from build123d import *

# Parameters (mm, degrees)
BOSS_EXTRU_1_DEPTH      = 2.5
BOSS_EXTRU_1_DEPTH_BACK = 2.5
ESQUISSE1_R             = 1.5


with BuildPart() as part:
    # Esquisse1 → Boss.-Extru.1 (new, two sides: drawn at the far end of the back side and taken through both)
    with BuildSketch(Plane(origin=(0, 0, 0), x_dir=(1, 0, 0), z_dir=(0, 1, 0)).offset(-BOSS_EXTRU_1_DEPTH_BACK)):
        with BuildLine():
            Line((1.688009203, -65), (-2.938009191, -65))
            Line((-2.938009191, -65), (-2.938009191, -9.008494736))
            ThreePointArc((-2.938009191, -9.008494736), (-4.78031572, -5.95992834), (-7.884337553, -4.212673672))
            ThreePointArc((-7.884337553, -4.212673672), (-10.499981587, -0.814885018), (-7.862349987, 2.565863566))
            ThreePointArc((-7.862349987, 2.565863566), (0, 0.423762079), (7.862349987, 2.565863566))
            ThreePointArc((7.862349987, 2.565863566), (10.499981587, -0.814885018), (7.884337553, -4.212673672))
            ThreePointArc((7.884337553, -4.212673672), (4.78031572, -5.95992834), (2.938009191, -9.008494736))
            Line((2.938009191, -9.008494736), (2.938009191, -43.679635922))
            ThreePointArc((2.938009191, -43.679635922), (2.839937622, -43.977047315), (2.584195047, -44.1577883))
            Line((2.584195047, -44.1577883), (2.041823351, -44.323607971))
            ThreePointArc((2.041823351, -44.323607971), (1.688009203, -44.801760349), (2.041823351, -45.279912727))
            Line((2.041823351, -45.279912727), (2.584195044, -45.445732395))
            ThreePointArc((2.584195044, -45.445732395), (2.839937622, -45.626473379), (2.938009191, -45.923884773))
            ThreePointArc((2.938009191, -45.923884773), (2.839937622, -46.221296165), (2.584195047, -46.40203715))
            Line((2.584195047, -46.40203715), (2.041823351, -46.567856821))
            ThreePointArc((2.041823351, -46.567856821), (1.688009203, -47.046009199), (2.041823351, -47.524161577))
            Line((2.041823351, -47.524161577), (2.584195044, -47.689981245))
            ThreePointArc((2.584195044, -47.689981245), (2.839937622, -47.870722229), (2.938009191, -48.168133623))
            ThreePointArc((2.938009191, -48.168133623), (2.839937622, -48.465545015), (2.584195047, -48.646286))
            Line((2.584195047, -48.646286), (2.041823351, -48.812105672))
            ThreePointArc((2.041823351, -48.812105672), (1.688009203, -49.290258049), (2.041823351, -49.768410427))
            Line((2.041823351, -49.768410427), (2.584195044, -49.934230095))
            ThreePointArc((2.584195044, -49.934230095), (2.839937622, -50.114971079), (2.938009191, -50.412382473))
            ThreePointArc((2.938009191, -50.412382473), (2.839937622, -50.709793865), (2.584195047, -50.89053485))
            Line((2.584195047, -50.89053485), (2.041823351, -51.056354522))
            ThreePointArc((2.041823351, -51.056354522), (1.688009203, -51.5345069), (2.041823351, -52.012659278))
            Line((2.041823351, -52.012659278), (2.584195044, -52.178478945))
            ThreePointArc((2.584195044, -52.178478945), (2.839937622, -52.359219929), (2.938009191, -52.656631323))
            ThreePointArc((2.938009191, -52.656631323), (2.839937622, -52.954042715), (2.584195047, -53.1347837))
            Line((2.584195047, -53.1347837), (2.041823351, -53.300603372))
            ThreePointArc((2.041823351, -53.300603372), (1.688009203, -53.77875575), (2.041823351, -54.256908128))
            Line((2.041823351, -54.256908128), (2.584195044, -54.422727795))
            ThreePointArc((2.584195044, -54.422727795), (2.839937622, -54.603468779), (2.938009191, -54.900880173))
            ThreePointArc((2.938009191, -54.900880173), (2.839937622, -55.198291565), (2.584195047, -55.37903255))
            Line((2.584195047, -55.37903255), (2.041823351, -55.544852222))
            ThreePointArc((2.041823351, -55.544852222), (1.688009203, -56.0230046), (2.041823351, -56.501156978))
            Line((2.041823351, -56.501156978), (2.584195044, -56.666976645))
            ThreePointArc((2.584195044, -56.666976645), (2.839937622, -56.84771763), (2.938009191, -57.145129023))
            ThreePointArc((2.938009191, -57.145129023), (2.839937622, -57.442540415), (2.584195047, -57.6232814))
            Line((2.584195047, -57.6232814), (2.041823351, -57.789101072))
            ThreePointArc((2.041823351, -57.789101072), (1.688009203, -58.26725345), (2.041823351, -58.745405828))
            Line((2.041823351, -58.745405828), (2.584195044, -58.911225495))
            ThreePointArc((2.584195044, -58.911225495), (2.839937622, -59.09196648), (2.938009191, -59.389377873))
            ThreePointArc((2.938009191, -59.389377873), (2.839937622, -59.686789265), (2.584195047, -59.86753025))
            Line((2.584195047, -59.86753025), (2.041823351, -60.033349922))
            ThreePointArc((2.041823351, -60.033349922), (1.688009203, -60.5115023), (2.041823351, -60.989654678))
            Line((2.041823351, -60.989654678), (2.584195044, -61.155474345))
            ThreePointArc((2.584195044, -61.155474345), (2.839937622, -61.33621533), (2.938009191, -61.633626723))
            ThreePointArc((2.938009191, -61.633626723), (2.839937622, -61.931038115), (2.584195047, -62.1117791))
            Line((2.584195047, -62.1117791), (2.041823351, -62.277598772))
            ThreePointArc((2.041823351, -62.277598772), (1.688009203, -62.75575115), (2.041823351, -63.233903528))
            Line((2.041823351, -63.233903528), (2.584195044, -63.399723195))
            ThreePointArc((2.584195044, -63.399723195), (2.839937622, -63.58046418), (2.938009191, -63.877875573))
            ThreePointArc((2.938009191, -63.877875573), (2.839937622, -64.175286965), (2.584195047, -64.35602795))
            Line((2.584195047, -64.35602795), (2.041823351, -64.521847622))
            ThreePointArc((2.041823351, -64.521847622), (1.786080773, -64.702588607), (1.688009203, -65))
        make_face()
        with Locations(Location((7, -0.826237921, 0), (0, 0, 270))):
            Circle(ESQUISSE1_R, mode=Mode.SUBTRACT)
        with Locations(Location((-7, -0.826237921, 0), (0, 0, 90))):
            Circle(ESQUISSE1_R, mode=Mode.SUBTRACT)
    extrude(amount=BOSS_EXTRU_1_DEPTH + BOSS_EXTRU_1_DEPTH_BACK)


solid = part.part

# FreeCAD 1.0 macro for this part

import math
import FreeCAD as App
import Part
import Sketcher
Q = App.Units.Quantity

doc = App.newDocument("Part")
body = doc.addObject("PartDesign::Body", "Body")

# Sketch on XZ plane
sketch1 = doc.addObject("Sketcher::SketchObject", "Sketch")
body.addObject(sketch1)
sketch1.AttachmentSupport = (doc.XZ_Plane, [""])
sketch1.MapMode = "FlatFace"
sketch1.addGeometry([
    Part.LineSegment(App.Vector(-2.94, 65, 0), App.Vector(1.69, 65, 0)),  # 0
    Part.ArcOfCircle(Part.Circle(App.Vector(2.19, 65, 0), App.Vector(0, 0, 1), 0.5), math.radians(-180), math.radians(-107)),  # 1
    Part.LineSegment(App.Vector(2.04, 64.52, 0), App.Vector(2.58, 64.36, 0)),  # 2
    Part.ArcOfCircle(Part.Circle(App.Vector(2.44, 63.88, 0), App.Vector(0, 0, 1), 0.5), math.radians(0), math.radians(73)),  # 3
    Part.ArcOfCircle(Part.Circle(App.Vector(2.44, 63.88, 0), App.Vector(0, 0, 1), 0.5), math.radians(-73), math.radians(0)),  # 4
    Part.LineSegment(App.Vector(2.58, 63.4, 0), App.Vector(2.04, 63.23, 0)),  # 5
    Part.ArcOfCircle(Part.Circle(App.Vector(2.19, 62.76, 0), App.Vector(0, 0, 1), 0.5), math.radians(107), math.radians(253)),  # 6
    Part.LineSegment(App.Vector(2.04, 62.28, 0), App.Vector(2.58, 62.11, 0)),  # 7
    Part.ArcOfCircle(Part.Circle(App.Vector(2.44, 61.63, 0), App.Vector(0, 0, 1), 0.5), math.radians(0), math.radians(73)),  # 8
    Part.ArcOfCircle(Part.Circle(App.Vector(2.44, 61.63, 0), App.Vector(0, 0, 1), 0.5), math.radians(-73), math.radians(0)),  # 9
    Part.LineSegment(App.Vector(2.58, 61.16, 0), App.Vector(2.04, 60.99, 0)),  # 10
    Part.ArcOfCircle(Part.Circle(App.Vector(2.19, 60.51, 0), App.Vector(0, 0, 1), 0.5), math.radians(107), math.radians(253)),  # 11
    Part.LineSegment(App.Vector(2.04, 60.03, 0), App.Vector(2.58, 59.87, 0)),  # 12
    Part.ArcOfCircle(Part.Circle(App.Vector(2.44, 59.39, 0), App.Vector(0, 0, 1), 0.5), math.radians(0), math.radians(73)),  # 13
    Part.ArcOfCircle(Part.Circle(App.Vector(2.44, 59.39, 0), App.Vector(0, 0, 1), 0.5), math.radians(-73), math.radians(0)),  # 14
    Part.LineSegment(App.Vector(2.58, 58.91, 0), App.Vector(2.04, 58.75, 0)),  # 15
    Part.ArcOfCircle(Part.Circle(App.Vector(2.19, 58.27, 0), App.Vector(0, 0, 1), 0.5), math.radians(107), math.radians(253)),  # 16
    Part.LineSegment(App.Vector(2.04, 57.79, 0), App.Vector(2.58, 57.62, 0)),  # 17
    Part.ArcOfCircle(Part.Circle(App.Vector(2.44, 57.15, 0), App.Vector(0, 0, 1), 0.5), math.radians(0), math.radians(73)),  # 18
    Part.ArcOfCircle(Part.Circle(App.Vector(2.44, 57.15, 0), App.Vector(0, 0, 1), 0.5), math.radians(-73), math.radians(0)),  # 19
    Part.LineSegment(App.Vector(2.58, 56.67, 0), App.Vector(2.04, 56.5, 0)),  # 20
    Part.ArcOfCircle(Part.Circle(App.Vector(2.19, 56.02, 0), App.Vector(0, 0, 1), 0.5), math.radians(107), math.radians(253)),  # 21
    Part.LineSegment(App.Vector(2.04, 55.54, 0), App.Vector(2.58, 55.38, 0)),  # 22
    Part.ArcOfCircle(Part.Circle(App.Vector(2.44, 54.9, 0), App.Vector(0, 0, 1), 0.5), math.radians(0), math.radians(73)),  # 23
    Part.ArcOfCircle(Part.Circle(App.Vector(2.44, 54.9, 0), App.Vector(0, 0, 1), 0.5), math.radians(-73), math.radians(0)),  # 24
    Part.LineSegment(App.Vector(2.58, 54.42, 0), App.Vector(2.04, 54.26, 0)),  # 25
    Part.ArcOfCircle(Part.Circle(App.Vector(2.19, 53.78, 0), App.Vector(0, 0, 1), 0.5), math.radians(107), math.radians(253)),  # 26
    Part.LineSegment(App.Vector(2.04, 53.3, 0), App.Vector(2.58, 53.13, 0)),  # 27
    Part.ArcOfCircle(Part.Circle(App.Vector(2.44, 52.66, 0), App.Vector(0, 0, 1), 0.5), math.radians(0), math.radians(73)),  # 28
    Part.ArcOfCircle(Part.Circle(App.Vector(2.44, 52.66, 0), App.Vector(0, 0, 1), 0.5), math.radians(-73), math.radians(0)),  # 29
    Part.LineSegment(App.Vector(2.58, 52.18, 0), App.Vector(2.04, 52.01, 0)),  # 30
    Part.ArcOfCircle(Part.Circle(App.Vector(2.19, 51.53, 0), App.Vector(0, 0, 1), 0.5), math.radians(107), math.radians(253)),  # 31
    Part.LineSegment(App.Vector(2.04, 51.06, 0), App.Vector(2.58, 50.89, 0)),  # 32
    Part.ArcOfCircle(Part.Circle(App.Vector(2.44, 50.41, 0), App.Vector(0, 0, 1), 0.5), math.radians(0), math.radians(73)),  # 33
    Part.ArcOfCircle(Part.Circle(App.Vector(2.44, 50.41, 0), App.Vector(0, 0, 1), 0.5), math.radians(-73), math.radians(0)),  # 34
    Part.LineSegment(App.Vector(2.58, 49.93, 0), App.Vector(2.04, 49.77, 0)),  # 35
    Part.ArcOfCircle(Part.Circle(App.Vector(2.19, 49.29, 0), App.Vector(0, 0, 1), 0.5), math.radians(107), math.radians(253)),  # 36
    Part.LineSegment(App.Vector(2.04, 48.81, 0), App.Vector(2.58, 48.65, 0)),  # 37
    Part.ArcOfCircle(Part.Circle(App.Vector(2.44, 48.17, 0), App.Vector(0, 0, 1), 0.5), math.radians(0), math.radians(73)),  # 38
    Part.ArcOfCircle(Part.Circle(App.Vector(2.44, 48.17, 0), App.Vector(0, 0, 1), 0.5), math.radians(-73), math.radians(0)),  # 39
    Part.LineSegment(App.Vector(2.58, 47.69, 0), App.Vector(2.04, 47.52, 0)),  # 40
    Part.ArcOfCircle(Part.Circle(App.Vector(2.19, 47.05, 0), App.Vector(0, 0, 1), 0.5), math.radians(107), math.radians(253)),  # 41
    Part.LineSegment(App.Vector(2.04, 46.57, 0), App.Vector(2.58, 46.4, 0)),  # 42
    Part.ArcOfCircle(Part.Circle(App.Vector(2.44, 45.92, 0), App.Vector(0, 0, 1), 0.5), math.radians(0), math.radians(73)),  # 43
    Part.ArcOfCircle(Part.Circle(App.Vector(2.44, 45.92, 0), App.Vector(0, 0, 1), 0.5), math.radians(-73), math.radians(0)),  # 44
    Part.LineSegment(App.Vector(2.58, 45.45, 0), App.Vector(2.04, 45.28, 0)),  # 45
    Part.ArcOfCircle(Part.Circle(App.Vector(2.19, 44.8, 0), App.Vector(0, 0, 1), 0.5), math.radians(107), math.radians(253)),  # 46
    Part.LineSegment(App.Vector(2.04, 44.32, 0), App.Vector(2.58, 44.16, 0)),  # 47
    Part.ArcOfCircle(Part.Circle(App.Vector(2.44, 43.68, 0), App.Vector(0, 0, 1), 0.5), math.radians(0), math.radians(73)),  # 48
    Part.LineSegment(App.Vector(2.94, 43.68, 0), App.Vector(2.94, 9.01, 0)),  # 49
    Part.ArcOfCircle(Part.Circle(App.Vector(9.65, 10.99, 0), App.Vector(0, 0, 1), 7), math.radians(-164), math.radians(-105)),  # 50
    Part.ArcOfCircle(Part.Circle(App.Vector(7, 0.83, 0), App.Vector(0, 0, 1), 3.5), math.radians(-76), math.radians(75)),  # 51
    Part.ArcOfCircle(Part.Circle(App.Vector(0, -15.92, 0), App.Vector(0, 0, 1), 15.5), math.radians(60), math.radians(120)),  # 52
    Part.ArcOfCircle(Part.Circle(App.Vector(-7, 0.83, 0), App.Vector(0, 0, 1), 3.5), math.radians(105), math.radians(256)),  # 53
    Part.ArcOfCircle(Part.Circle(App.Vector(-9.65, 10.99, 0), App.Vector(0, 0, 1), 7), math.radians(-75), math.radians(-16)),  # 54
    Part.LineSegment(App.Vector(-2.94, 9.01, 0), App.Vector(-2.94, 65, 0)),  # 55
    Part.Circle(App.Vector(7, 0.83, 0), App.Vector(0, 0, 1), 1.5),  # 56
    Part.Circle(App.Vector(-7, 0.83, 0), App.Vector(0, 0, 1), 1.5),  # 57
], False)
sketch1.addConstraint([
    Sketcher.Constraint("Coincident", 0, 2, 1, 1),
    Sketcher.Constraint("Tangent", 1, 2, 2, 1),
    Sketcher.Constraint("Tangent", 2, 2, 3, 2),
    Sketcher.Constraint("Tangent", 3, 1, 4, 2),
    Sketcher.Constraint("Tangent", 4, 1, 5, 1),
    Sketcher.Constraint("Tangent", 5, 2, 6, 1),
    Sketcher.Constraint("Tangent", 6, 2, 7, 1),
    Sketcher.Constraint("Tangent", 7, 2, 8, 2),
    Sketcher.Constraint("Tangent", 8, 1, 9, 2),
    Sketcher.Constraint("Tangent", 9, 1, 10, 1),
    Sketcher.Constraint("Tangent", 10, 2, 11, 1),
    Sketcher.Constraint("Tangent", 11, 2, 12, 1),
    Sketcher.Constraint("Tangent", 12, 2, 13, 2),
    Sketcher.Constraint("Tangent", 13, 1, 14, 2),
    Sketcher.Constraint("Tangent", 14, 1, 15, 1),
    Sketcher.Constraint("Tangent", 15, 2, 16, 1),
    Sketcher.Constraint("Tangent", 16, 2, 17, 1),
    Sketcher.Constraint("Tangent", 17, 2, 18, 2),
    Sketcher.Constraint("Tangent", 18, 1, 19, 2),
    Sketcher.Constraint("Tangent", 19, 1, 20, 1),
    Sketcher.Constraint("Tangent", 20, 2, 21, 1),
    Sketcher.Constraint("Tangent", 21, 2, 22, 1),
    Sketcher.Constraint("Tangent", 22, 2, 23, 2),
    Sketcher.Constraint("Tangent", 23, 1, 24, 2),
    Sketcher.Constraint("Tangent", 24, 1, 25, 1),
    Sketcher.Constraint("Tangent", 25, 2, 26, 1),
    Sketcher.Constraint("Tangent", 26, 2, 27, 1),
    Sketcher.Constraint("Tangent", 27, 2, 28, 2),
    Sketcher.Constraint("Tangent", 28, 1, 29, 2),
    Sketcher.Constraint("Tangent", 29, 1, 30, 1),
    Sketcher.Constraint("Tangent", 30, 2, 31, 1),
    Sketcher.Constraint("Tangent", 31, 2, 32, 1),
    Sketcher.Constraint("Tangent", 32, 2, 33, 2),
    Sketcher.Constraint("Tangent", 33, 1, 34, 2),
    Sketcher.Constraint("Tangent", 34, 1, 35, 1),
    Sketcher.Constraint("Tangent", 35, 2, 36, 1),
    Sketcher.Constraint("Tangent", 36, 2, 37, 1),
    Sketcher.Constraint("Tangent", 37, 2, 38, 2),
    Sketcher.Constraint("Tangent", 38, 1, 39, 2),
    Sketcher.Constraint("Tangent", 39, 1, 40, 1),
    Sketcher.Constraint("Tangent", 40, 2, 41, 1),
    Sketcher.Constraint("Tangent", 41, 2, 42, 1),
    Sketcher.Constraint("Tangent", 42, 2, 43, 2),
    Sketcher.Constraint("Tangent", 43, 1, 44, 2),
    Sketcher.Constraint("Tangent", 44, 1, 45, 1),
    Sketcher.Constraint("Tangent", 45, 2, 46, 1),
    Sketcher.Constraint("Tangent", 46, 2, 47, 1),
    Sketcher.Constraint("Tangent", 47, 2, 48, 2),
    Sketcher.Constraint("Tangent", 48, 1, 49, 1),
    Sketcher.Constraint("Coincident", 49, 2, 50, 1),
    Sketcher.Constraint("Tangent", 50, 2, 51, 2),
    Sketcher.Constraint("Coincident", 51, 1, 52, 1),
    Sketcher.Constraint("Coincident", 52, 2, 53, 2),
    Sketcher.Constraint("Tangent", 53, 1, 54, 1),
    Sketcher.Constraint("Coincident", 54, 2, 55, 1),
    Sketcher.Constraint("Coincident", 55, 2, 0, 1),
    Sketcher.Constraint("Horizontal", 0),
    Sketcher.Constraint("Vertical", 49),
    Sketcher.Constraint("Vertical", 55),
    Sketcher.Constraint("Coincident", 56, 3, 51, 3),
    Sketcher.Constraint("Coincident", 57, 3, 53, 3),
    Sketcher.Constraint("Equal", 1, 3),
    Sketcher.Constraint("Equal", 3, 4),
    Sketcher.Constraint("Equal", 4, 6),
    Sketcher.Constraint("Equal", 6, 8),
    Sketcher.Constraint("Equal", 8, 9),
    Sketcher.Constraint("Equal", 9, 11),
    Sketcher.Constraint("Equal", 11, 13),
    Sketcher.Constraint("Equal", 13, 14),
    Sketcher.Constraint("Equal", 14, 16),
    Sketcher.Constraint("Equal", 16, 18),
    Sketcher.Constraint("Equal", 18, 19),
    Sketcher.Constraint("Equal", 19, 21),
    Sketcher.Constraint("Equal", 21, 23),
    Sketcher.Constraint("Equal", 23, 24),
    Sketcher.Constraint("Equal", 24, 26),
    Sketcher.Constraint("Equal", 26, 28),
    Sketcher.Constraint("Equal", 28, 29),
    Sketcher.Constraint("Equal", 29, 31),
    Sketcher.Constraint("Equal", 31, 33),
    Sketcher.Constraint("Equal", 33, 34),
    Sketcher.Constraint("Equal", 34, 36),
    Sketcher.Constraint("Equal", 36, 38),
    Sketcher.Constraint("Equal", 38, 39),
    Sketcher.Constraint("Equal", 39, 41),
    Sketcher.Constraint("Equal", 41, 43),
    Sketcher.Constraint("Equal", 43, 44),
    Sketcher.Constraint("Equal", 44, 46),
    Sketcher.Constraint("Equal", 46, 48),
    Sketcher.Constraint("Equal", 51, 53),
    Sketcher.Constraint("Equal", 50, 54),
    Sketcher.Constraint("Equal", 56, 57),
    Sketcher.Constraint("Symmetric", 51, 3, 53, 3, -2),
    Sketcher.Constraint("Symmetric", 49, 2, 54, 2, -2),
    Sketcher.Constraint("PointOnObject", 52, 3, -2),
    Sketcher.Constraint("Parallel", 2, 7),
    Sketcher.Constraint("Parallel", 5, 10),
    Sketcher.Constraint("Parallel", 7, 12),
    Sketcher.Constraint("Parallel", 10, 15),
    Sketcher.Constraint("Parallel", 12, 17),
    Sketcher.Constraint("Parallel", 15, 20),
    Sketcher.Constraint("Parallel", 17, 22),
    Sketcher.Constraint("Parallel", 20, 25),
    Sketcher.Constraint("Parallel", 22, 27),
    Sketcher.Constraint("Parallel", 25, 30),
    Sketcher.Constraint("Parallel", 27, 32),
    Sketcher.Constraint("Parallel", 30, 35),
    Sketcher.Constraint("Parallel", 32, 37),
    Sketcher.Constraint("Parallel", 35, 40),
    Sketcher.Constraint("Parallel", 37, 42),
    Sketcher.Constraint("Parallel", 40, 45),
    Sketcher.Constraint("Parallel", 42, 47),
    Sketcher.Constraint("Horizontal", 1, 3, 0, 2),
    Sketcher.Constraint("Horizontal", 4, 3, 3, 1),
    Sketcher.Constraint("Horizontal", 9, 3, 8, 1),
    Sketcher.Constraint("Horizontal", 14, 3, 13, 1),
    Sketcher.Constraint("Horizontal", 19, 3, 18, 1),
    Sketcher.Constraint("Horizontal", 24, 3, 23, 1),
    Sketcher.Constraint("Horizontal", 29, 3, 28, 1),
    Sketcher.Constraint("Horizontal", 34, 3, 33, 1),
    Sketcher.Constraint("Horizontal", 39, 3, 38, 1),
    Sketcher.Constraint("Horizontal", 44, 3, 43, 1),
    Sketcher.Constraint("Vertical", 1, 3, 6, 3),
    Sketcher.Constraint("Vertical", 4, 3, 8, 3),
    Sketcher.Constraint("Vertical", 6, 3, 11, 3),
    Sketcher.Constraint("Vertical", 9, 3, 13, 3),
    Sketcher.Constraint("Vertical", 11, 3, 16, 3),
    Sketcher.Constraint("Vertical", 14, 3, 18, 3),
    Sketcher.Constraint("Vertical", 16, 3, 21, 3),
    Sketcher.Constraint("Vertical", 19, 3, 23, 3),
    Sketcher.Constraint("Vertical", 21, 3, 26, 3),
    Sketcher.Constraint("Vertical", 24, 3, 28, 3),
    Sketcher.Constraint("Vertical", 26, 3, 31, 3),
    Sketcher.Constraint("Vertical", 29, 3, 33, 3),
    Sketcher.Constraint("Vertical", 31, 3, 36, 3),
    Sketcher.Constraint("Vertical", 34, 3, 38, 3),
    Sketcher.Constraint("Vertical", 36, 3, 41, 3),
    Sketcher.Constraint("Vertical", 39, 3, 43, 3),
    Sketcher.Constraint("Vertical", 41, 3, 46, 3),
    Sketcher.Constraint("Vertical", 44, 3, 48, 3),
    Sketcher.Constraint("Vertical", 2, 2, 4, 1),
    Sketcher.Constraint("Diameter", 56, Q("3 mm")),
    Sketcher.Constraint("Radius", 50, Q("7 mm")),
    Sketcher.Constraint("Radius", 1, Q("0.5 mm")),
    Sketcher.Constraint("Radius", 51, Q("3.5 mm")),
    Sketcher.Constraint("Radius", 52, Q("15.5 mm")),
    Sketcher.Constraint("Angle", 2, Q("-17 deg")),
    Sketcher.Constraint("DistanceY", -1, 1, 1, 3, Q("65 mm")),
    Sketcher.Constraint("DistanceX", -1, 1, 51, 3, Q("7 mm")),
    Sketcher.Constraint("DistanceX", 0, 1, 0, 2, Q("4.626018 mm")),
    Sketcher.Constraint("DistanceY", 49, 2, 49, 1, Q("34.671141 mm")),
    Sketcher.Constraint("DistanceY", -1, 1, 6, 2, Q("62.277599 mm")),
    Sketcher.Constraint("DistanceX", -1, 1, 51, 1, Q("7.86235 mm")),
    Sketcher.Constraint("DistanceX", -1, 1, 50, 3, Q("9.653013 mm")),
])
pad1 = doc.addObject("PartDesign::Pad", "Pad")
body.addObject(pad1)
pad1.Profile = sketch1
pad1.Type = "TwoLengths"
pad1.Length = 2.5
pad1.Length2 = 2.5
pad1.Reversed = True

doc.recompute()
